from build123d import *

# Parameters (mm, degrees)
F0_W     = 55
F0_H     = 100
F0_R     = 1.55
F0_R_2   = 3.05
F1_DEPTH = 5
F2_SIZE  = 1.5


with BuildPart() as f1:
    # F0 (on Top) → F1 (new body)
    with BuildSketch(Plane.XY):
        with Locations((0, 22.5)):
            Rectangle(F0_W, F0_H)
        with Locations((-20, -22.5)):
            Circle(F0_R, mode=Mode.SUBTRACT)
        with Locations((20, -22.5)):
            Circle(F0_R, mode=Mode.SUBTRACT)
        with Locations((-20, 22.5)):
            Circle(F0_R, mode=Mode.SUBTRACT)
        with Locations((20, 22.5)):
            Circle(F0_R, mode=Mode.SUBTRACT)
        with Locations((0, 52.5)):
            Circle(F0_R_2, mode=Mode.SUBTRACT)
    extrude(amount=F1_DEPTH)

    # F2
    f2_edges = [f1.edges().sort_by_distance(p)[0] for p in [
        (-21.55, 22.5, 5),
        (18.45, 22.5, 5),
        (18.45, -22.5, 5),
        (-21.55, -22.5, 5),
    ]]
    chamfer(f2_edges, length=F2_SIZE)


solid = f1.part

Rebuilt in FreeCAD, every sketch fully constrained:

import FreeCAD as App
import Part
import Sketcher

V = App.Vector
Q = App.Units.Quantity


def edges_at(feature, points):
    """Names of the edges that pass closest to the given points."""
    edges = feature.Shape.Edges
    near = lambda p: min(range(len(edges)), key=lambda i: edges[i].distToShape(Part.Vertex(*p))[0])
    return sorted({f"Edge{near(p) + 1}" for p in points})


def add_polygon(sketch, points):
    """Adds a closed chain of lines whose ends are joined by coincident constraints."""
    first, n = sketch.GeometryCount, len(points)
    for a, b in zip(points, points[1:] + points[:1]):
        sketch.addGeometry(Part.LineSegment(App.Vector(*a, 0), App.Vector(*b, 0)), False)
    for i in range(n):
        sketch.addConstraint(Sketcher.Constraint("Coincident", first + i, 2, first + (i + 1) % n, 1))

doc = App.newDocument("Part")
body = doc.addObject("PartDesign::Body", "Body")

sketch1 = doc.addObject("Sketcher::SketchObject", "Sketch")
body.addObject(sketch1)
sketch1.AttachmentSupport = (doc.XY_Plane, [""])
sketch1.MapMode = "FlatFace"
add_polygon(sketch1, [(-27.5, 72.5), (-27.5, -27.5), (27.5, -27.5), (27.5, 72.5)])
sketch1.addGeometry(Part.Circle(V(-20, -22.5, 0), V(0, 0, 1), 1.55), False)
sketch1.addGeometry(Part.Circle(V(20, -22.5, 0), V(0, 0, 1), 1.55), False)
sketch1.addGeometry(Part.Circle(V(-20, 22.5, 0), V(0, 0, 1), 1.55), False)
sketch1.addGeometry(Part.Circle(V(20, 22.5, 0), V(0, 0, 1), 1.55), False)
sketch1.addGeometry(Part.Circle(V(0, 52.5, 0), V(0, 0, 1), 3.05), False)
sketch1.addConstraint([
    Sketcher.Constraint("Vertical", 0),
    Sketcher.Constraint("Horizontal", 1),
    Sketcher.Constraint("Vertical", 2),
    Sketcher.Constraint("Horizontal", 3),
    Sketcher.Constraint("Equal", 4, 5),
    Sketcher.Constraint("Equal", 5, 6),
    Sketcher.Constraint("Equal", 6, 7),
    Sketcher.Constraint("Symmetric", 5, 3, 6, 3, -1, 1),
    Sketcher.Constraint("Symmetric", 4, 3, 7, 3, -1, 1),
    Sketcher.Constraint("Symmetric", 4, 3, 5, 3, -2),
    Sketcher.Constraint("PointOnObject", 8, 3, -2),
    Sketcher.Constraint("Diameter", 4, Q("3.1 mm")),
    Sketcher.Constraint("Diameter", 8, Q("6.1 mm")),
    Sketcher.Constraint("DistanceX", 1, 1, 1, 2, Q("55 mm")),
    Sketcher.Constraint("DistanceY", 0, 2, 0, 1, Q("100 mm")),
    Sketcher.Constraint("DistanceX", 4, 3, -1, 1, Q("20 mm")),
    Sketcher.Constraint("DistanceY", 4, 3, 6, 3, Q("45 mm")),
    Sketcher.Constraint("DistanceY", 6, 3, 8, 3, Q("30 mm")),
    Sketcher.Constraint("DistanceY", 0, 2, 4, 3, Q("5 mm")),
    Sketcher.Constraint("DistanceX", 0, 2, -1, 1, Q("27.5 mm")),
])
pad1 = doc.addObject("PartDesign::Pad", "Pad")
body.addObject(pad1)
pad1.Profile = sketch1
pad1.Length = 5
doc.recompute()

chamfer = doc.addObject("PartDesign::Chamfer", "Chamfer")
body.addObject(chamfer)
chamfer.Base = (pad1, edges_at(pad1, [
    (-21.55, 22.5, 5),
    (18.45, 22.5, 5),
    (18.45, -22.5, 5),
    (-21.55, -22.5, 5),
]))
chamfer.Size = 1.5

doc.recompute()
